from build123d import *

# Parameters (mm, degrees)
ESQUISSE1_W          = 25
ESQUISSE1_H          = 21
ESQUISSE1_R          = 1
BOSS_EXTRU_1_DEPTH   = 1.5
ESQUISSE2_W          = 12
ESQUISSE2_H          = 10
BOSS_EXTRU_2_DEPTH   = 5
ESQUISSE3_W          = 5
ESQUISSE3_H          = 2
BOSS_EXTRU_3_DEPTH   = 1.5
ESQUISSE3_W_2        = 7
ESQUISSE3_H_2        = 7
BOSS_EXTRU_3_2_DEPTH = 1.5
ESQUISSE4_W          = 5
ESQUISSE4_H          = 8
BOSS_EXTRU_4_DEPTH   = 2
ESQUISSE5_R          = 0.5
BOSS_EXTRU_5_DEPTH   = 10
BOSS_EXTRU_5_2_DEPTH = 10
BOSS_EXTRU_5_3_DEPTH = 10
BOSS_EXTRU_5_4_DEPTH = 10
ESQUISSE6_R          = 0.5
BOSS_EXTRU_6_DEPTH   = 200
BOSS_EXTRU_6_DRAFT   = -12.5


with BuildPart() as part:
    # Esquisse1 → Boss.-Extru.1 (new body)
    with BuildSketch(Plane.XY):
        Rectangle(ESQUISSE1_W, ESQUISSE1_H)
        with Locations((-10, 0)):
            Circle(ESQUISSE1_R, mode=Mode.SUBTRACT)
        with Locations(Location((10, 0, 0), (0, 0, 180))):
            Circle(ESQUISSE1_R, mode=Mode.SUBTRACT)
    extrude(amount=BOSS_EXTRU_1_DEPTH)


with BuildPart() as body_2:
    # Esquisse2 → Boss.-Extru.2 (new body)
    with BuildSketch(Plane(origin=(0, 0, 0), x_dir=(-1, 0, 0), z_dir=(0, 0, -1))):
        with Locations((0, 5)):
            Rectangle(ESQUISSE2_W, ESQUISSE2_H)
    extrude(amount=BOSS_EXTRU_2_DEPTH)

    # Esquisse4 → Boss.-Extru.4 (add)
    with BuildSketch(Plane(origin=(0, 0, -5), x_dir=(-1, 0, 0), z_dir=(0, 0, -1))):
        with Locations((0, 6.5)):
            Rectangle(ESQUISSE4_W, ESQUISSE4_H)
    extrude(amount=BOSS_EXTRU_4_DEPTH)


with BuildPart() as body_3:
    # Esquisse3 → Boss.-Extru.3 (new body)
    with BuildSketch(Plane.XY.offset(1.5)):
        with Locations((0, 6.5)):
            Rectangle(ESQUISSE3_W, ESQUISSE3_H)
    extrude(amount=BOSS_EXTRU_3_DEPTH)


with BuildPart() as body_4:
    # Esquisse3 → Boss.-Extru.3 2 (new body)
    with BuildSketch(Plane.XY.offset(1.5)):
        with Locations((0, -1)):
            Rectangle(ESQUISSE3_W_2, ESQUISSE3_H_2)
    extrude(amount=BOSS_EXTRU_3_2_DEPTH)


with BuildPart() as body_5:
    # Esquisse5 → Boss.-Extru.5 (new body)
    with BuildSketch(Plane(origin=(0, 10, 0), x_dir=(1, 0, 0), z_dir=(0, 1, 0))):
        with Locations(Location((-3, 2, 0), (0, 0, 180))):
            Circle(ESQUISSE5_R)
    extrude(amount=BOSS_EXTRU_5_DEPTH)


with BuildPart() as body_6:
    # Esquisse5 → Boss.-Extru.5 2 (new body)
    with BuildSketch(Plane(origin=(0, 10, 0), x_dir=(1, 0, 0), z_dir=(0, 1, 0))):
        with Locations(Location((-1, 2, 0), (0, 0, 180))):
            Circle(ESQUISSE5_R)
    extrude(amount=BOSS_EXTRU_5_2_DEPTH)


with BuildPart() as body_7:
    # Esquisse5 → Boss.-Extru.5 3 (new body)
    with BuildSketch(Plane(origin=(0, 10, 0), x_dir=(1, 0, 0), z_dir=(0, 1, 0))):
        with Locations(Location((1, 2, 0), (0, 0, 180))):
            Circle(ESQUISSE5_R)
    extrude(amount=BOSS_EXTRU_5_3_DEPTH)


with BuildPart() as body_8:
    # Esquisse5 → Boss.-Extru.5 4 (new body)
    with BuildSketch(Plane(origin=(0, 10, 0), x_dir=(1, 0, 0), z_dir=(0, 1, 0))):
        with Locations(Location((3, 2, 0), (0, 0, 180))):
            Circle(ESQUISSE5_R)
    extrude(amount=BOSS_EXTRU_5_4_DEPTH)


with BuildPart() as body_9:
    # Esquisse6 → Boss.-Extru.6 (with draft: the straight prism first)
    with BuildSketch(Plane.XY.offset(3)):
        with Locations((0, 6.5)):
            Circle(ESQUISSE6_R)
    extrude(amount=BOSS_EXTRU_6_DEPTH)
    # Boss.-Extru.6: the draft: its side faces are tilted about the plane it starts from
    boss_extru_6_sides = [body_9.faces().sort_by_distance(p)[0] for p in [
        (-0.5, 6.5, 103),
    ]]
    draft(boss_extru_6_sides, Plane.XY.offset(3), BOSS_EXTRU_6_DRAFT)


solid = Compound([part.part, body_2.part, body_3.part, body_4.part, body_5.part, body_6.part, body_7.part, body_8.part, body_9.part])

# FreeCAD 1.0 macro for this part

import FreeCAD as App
import Part
import Sketcher
Q = App.Units.Quantity


def faces_at(feature, points):
    """Names of the faces that lie closest to the given points."""
    faces = feature.Shape.Faces
    near = lambda p: min(range(len(faces)), key=lambda i: faces[i].distToShape(Part.Vertex(*p))[0])
    return sorted({f"Face{near(p) + 1}" for p in points})

doc = App.newDocument("Part")
body = doc.addObject("PartDesign::Body", "Body")

# Sketch on XY plane
sketch1 = doc.addObject("Sketcher::SketchObject", "Sketch")
body.addObject(sketch1)
sketch1.AttachmentSupport = (doc.XY_Plane, [""])
sketch1.MapMode = "FlatFace"
sketch1.addGeometry(Part.LineSegment(App.Vector(-12.5, 10.5, 0), App.Vector(-12.5, -10.5, 0)), False)
sketch1.addGeometry(Part.LineSegment(App.Vector(-12.5, -10.5, 0), App.Vector(12.5, -10.5, 0)), False)
sketch1.addGeometry(Part.LineSegment(App.Vector(12.5, -10.5, 0), App.Vector(12.5, 10.5, 0)), False)
sketch1.addGeometry(Part.LineSegment(App.Vector(12.5, 10.5, 0), App.Vector(-12.5, 10.5, 0)), False)
sketch1.addGeometry(Part.Circle(App.Vector(-10, 0, 0), App.Vector(0, 0, 1), 1), False)
sketch1.addGeometry(Part.Circle(App.Vector(10, 0, 0), App.Vector(0, 0, 1), 1), False)
sketch1.addConstraint(Sketcher.Constraint("Coincident", 0, 2, 1, 1))
sketch1.addConstraint(Sketcher.Constraint("Coincident", 1, 2, 2, 1))
sketch1.addConstraint(Sketcher.Constraint("Coincident", 2, 2, 3, 1))
sketch1.addConstraint(Sketcher.Constraint("Coincident", 3, 2, 0, 1))
sketch1.addConstraint(Sketcher.Constraint("Vertical", 0))
sketch1.addConstraint(Sketcher.Constraint("Horizontal", 1))
sketch1.addConstraint(Sketcher.Constraint("Vertical", 2))
sketch1.addConstraint(Sketcher.Constraint("Horizontal", 3))
sketch1.addConstraint(Sketcher.Constraint("Equal", 4, 5))
sketch1.addConstraint(Sketcher.Constraint("Symmetric", 4, 3, 5, 3, -1, 1))
sketch1.addConstraint(Sketcher.Constraint("Symmetric", 0, 2, 2, 2, -1, 1))
sketch1.addConstraint(Sketcher.Constraint("PointOnObject", 4, 3, -1))
sketch1.addConstraint(Sketcher.Constraint("Diameter", 4, Q("2 mm")))
sketch1.addConstraint(Sketcher.Constraint("DistanceX", 1, 1, 1, 2, Q("25 mm")))
sketch1.addConstraint(Sketcher.Constraint("DistanceY", 0, 2, 0, 1, Q("21 mm")))
sketch1.addConstraint(Sketcher.Constraint("DistanceX", 4, 3, -1, 1, Q("10 mm")))
pad1 = doc.addObject("PartDesign::Pad", "Pad")
body.addObject(pad1)
pad1.Profile = sketch1
pad1.Length = 1.5
body2 = doc.addObject("PartDesign::Body", "Body001")

# Sketch on XY plane
sketch2 = doc.addObject("Sketcher::SketchObject", "Sketch001")
body2.addObject(sketch2)
sketch2.AttachmentSupport = (doc.getObject("XY_Plane001"), [""])
sketch2.MapMode = "FlatFace"
sketch2.addGeometry(Part.LineSegment(App.Vector(6, 10, 0), App.Vector(6, 0, 0)), False)
sketch2.addGeometry(Part.LineSegment(App.Vector(6, 0, 0), App.Vector(-6, 0, 0)), False)
sketch2.addGeometry(Part.LineSegment(App.Vector(-6, 0, 0), App.Vector(-6, 10, 0)), False)
sketch2.addGeometry(Part.LineSegment(App.Vector(-6, 10, 0), App.Vector(6, 10, 0)), False)
sketch2.addConstraint(Sketcher.Constraint("Coincident", 0, 2, 1, 1))
sketch2.addConstraint(Sketcher.Constraint("Coincident", 1, 2, 2, 1))
sketch2.addConstraint(Sketcher.Constraint("Coincident", 2, 2, 3, 1))
sketch2.addConstraint(Sketcher.Constraint("Coincident", 3, 2, 0, 1))
sketch2.addConstraint(Sketcher.Constraint("Vertical", 0))
sketch2.addConstraint(Sketcher.Constraint("Horizontal", 1))
sketch2.addConstraint(Sketcher.Constraint("Vertical", 2))
sketch2.addConstraint(Sketcher.Constraint("Horizontal", 3))
sketch2.addConstraint(Sketcher.Constraint("Symmetric", 0, 2, 1, 2, -1, 1))
sketch2.addConstraint(Sketcher.Constraint("DistanceX", 1, 2, 1, 1, Q("12 mm")))
sketch2.addConstraint(Sketcher.Constraint("DistanceY", 0, 2, 0, 1, Q("10 mm")))
pad2 = doc.addObject("PartDesign::Pad", "Pad001")
body2.addObject(pad2)
pad2.Profile = sketch2
pad2.Length = 5
pad2.Reversed = True

# Sketch on XY plane
sketch3 = doc.addObject("Sketcher::SketchObject", "Sketch002")
body2.addObject(sketch3)
sketch3.AttachmentSupport = (doc.getObject("XY_Plane001"), [""])
sketch3.MapMode = "FlatFace"
sketch3.AttachmentOffset = App.Placement(App.Vector(0, 0, -5), App.Rotation())
sketch3.addGeometry(Part.LineSegment(App.Vector(2.5, 10.5, 0), App.Vector(2.5, 2.5, 0)), False)
sketch3.addGeometry(Part.LineSegment(App.Vector(2.5, 2.5, 0), App.Vector(-2.5, 2.5, 0)), False)
sketch3.addGeometry(Part.LineSegment(App.Vector(-2.5, 2.5, 0), App.Vector(-2.5, 10.5, 0)), False)
sketch3.addGeometry(Part.LineSegment(App.Vector(-2.5, 10.5, 0), App.Vector(2.5, 10.5, 0)), False)
sketch3.addConstraint(Sketcher.Constraint("Coincident", 0, 2, 1, 1))
sketch3.addConstraint(Sketcher.Constraint("Coincident", 1, 2, 2, 1))
sketch3.addConstraint(Sketcher.Constraint("Coincident", 2, 2, 3, 1))
sketch3.addConstraint(Sketcher.Constraint("Coincident", 3, 2, 0, 1))
sketch3.addConstraint(Sketcher.Constraint("Vertical", 0))
sketch3.addConstraint(Sketcher.Constraint("Horizontal", 1))
sketch3.addConstraint(Sketcher.Constraint("Vertical", 2))
sketch3.addConstraint(Sketcher.Constraint("Horizontal", 3))
sketch3.addConstraint(Sketcher.Constraint("DistanceX", 1, 2, 1, 1, Q("5 mm")))
sketch3.addConstraint(Sketcher.Constraint("DistanceY", 0, 2, 0, 1, Q("8 mm")))
sketch3.addConstraint(Sketcher.Constraint("DistanceX", -1, 1, 0, 2, Q("2.5 mm")))
sketch3.addConstraint(Sketcher.Constraint("DistanceY", -1, 1, 0, 2, Q("2.5 mm")))
pad3 = doc.addObject("PartDesign::Pad", "Pad002")
body2.addObject(pad3)
pad3.Profile = sketch3
pad3.Length = 2
pad3.Reversed = True
body3 = doc.addObject("PartDesign::Body", "Body002")

# Sketch on XY plane
sketch4 = doc.addObject("Sketcher::SketchObject", "Sketch003")
body3.addObject(sketch4)
sketch4.AttachmentSupport = (doc.getObject("XY_Plane002"), [""])
sketch4.MapMode = "FlatFace"
sketch4.AttachmentOffset = App.Placement(App.Vector(0, 0, 1.5), App.Rotation())
sketch4.addGeometry(Part.LineSegment(App.Vector(-2.5, 7.5, 0), App.Vector(-2.5, 5.5, 0)), False)
sketch4.addGeometry(Part.LineSegment(App.Vector(-2.5, 5.5, 0), App.Vector(2.5, 5.5, 0)), False)
sketch4.addGeometry(Part.LineSegment(App.Vector(2.5, 5.5, 0), App.Vector(2.5, 7.5, 0)), False)
sketch4.addGeometry(Part.LineSegment(App.Vector(2.5, 7.5, 0), App.Vector(-2.5, 7.5, 0)), False)
sketch4.addConstraint(Sketcher.Constraint("Coincident", 0, 2, 1, 1))
sketch4.addConstraint(Sketcher.Constraint("Coincident", 1, 2, 2, 1))
sketch4.addConstraint(Sketcher.Constraint("Coincident", 2, 2, 3, 1))
sketch4.addConstraint(Sketcher.Constraint("Coincident", 3, 2, 0, 1))
sketch4.addConstraint(Sketcher.Constraint("Vertical", 0))
sketch4.addConstraint(Sketcher.Constraint("Horizontal", 1))
sketch4.addConstraint(Sketcher.Constraint("Vertical", 2))
sketch4.addConstraint(Sketcher.Constraint("Horizontal", 3))
sketch4.addConstraint(Sketcher.Constraint("DistanceX", 1, 1, 1, 2, Q("5 mm")))
sketch4.addConstraint(Sketcher.Constraint("DistanceY", 0, 2, 0, 1, Q("2 mm")))
sketch4.addConstraint(Sketcher.Constraint("DistanceX", 0, 2, -1, 1, Q("2.5 mm")))
sketch4.addConstraint(Sketcher.Constraint("DistanceY", -1, 1, 0, 2, Q("5.5 mm")))
pad4 = doc.addObject("PartDesign::Pad", "Pad003")
body3.addObject(pad4)
pad4.Profile = sketch4
pad4.Length = 1.5
body4 = doc.addObject("PartDesign::Body", "Body003")

# Sketch on XY plane
sketch5 = doc.addObject("Sketcher::SketchObject", "Sketch004")
body4.addObject(sketch5)
sketch5.AttachmentSupport = (doc.getObject("XY_Plane003"), [""])
sketch5.MapMode = "FlatFace"
sketch5.AttachmentOffset = App.Placement(App.Vector(0, 0, 1.5), App.Rotation())
sketch5.addGeometry(Part.LineSegment(App.Vector(-3.5, 2.5, 0), App.Vector(-3.5, -4.5, 0)), False)
sketch5.addGeometry(Part.LineSegment(App.Vector(-3.5, -4.5, 0), App.Vector(3.5, -4.5, 0)), False)
sketch5.addGeometry(Part.LineSegment(App.Vector(3.5, -4.5, 0), App.Vector(3.5, 2.5, 0)), False)
sketch5.addGeometry(Part.LineSegment(App.Vector(3.5, 2.5, 0), App.Vector(-3.5, 2.5, 0)), False)
sketch5.addConstraint(Sketcher.Constraint("Coincident", 0, 2, 1, 1))
sketch5.addConstraint(Sketcher.Constraint("Coincident", 1, 2, 2, 1))
sketch5.addConstraint(Sketcher.Constraint("Coincident", 2, 2, 3, 1))
sketch5.addConstraint(Sketcher.Constraint("Coincident", 3, 2, 0, 1))
sketch5.addConstraint(Sketcher.Constraint("Vertical", 0))
sketch5.addConstraint(Sketcher.Constraint("Horizontal", 1))
sketch5.addConstraint(Sketcher.Constraint("Vertical", 2))
sketch5.addConstraint(Sketcher.Constraint("Horizontal", 3))
sketch5.addConstraint(Sketcher.Constraint("Equal", 3, 0))
sketch5.addConstraint(Sketcher.Constraint("DistanceX", 1, 1, 1, 2, Q("7 mm")))
sketch5.addConstraint(Sketcher.Constraint("DistanceX", 0, 2, -1, 1, Q("3.5 mm")))
sketch5.addConstraint(Sketcher.Constraint("DistanceY", 0, 2, -1, 1, Q("4.5 mm")))
pad5 = doc.addObject("PartDesign::Pad", "Pad004")
body4.addObject(pad5)
pad5.Profile = sketch5
pad5.Length = 1.5
body5 = doc.addObject("PartDesign::Body", "Body004")

# Sketch on XZ plane
sketch6 = doc.addObject("Sketcher::SketchObject", "Sketch005")
body5.addObject(sketch6)
sketch6.AttachmentSupport = (doc.getObject("XZ_Plane004"), [""])
sketch6.MapMode = "FlatFace"
sketch6.AttachmentOffset = App.Placement(App.Vector(0, 0, -10), App.Rotation())
sketch6.addGeometry(Part.Circle(App.Vector(-3, -2, 0), App.Vector(0, 0, 1), 0.5), False)
sketch6.addConstraint(Sketcher.Constraint("Diameter", 0, Q("1 mm")))
sketch6.addConstraint(Sketcher.Constraint("DistanceX", 0, 3, -1, 1, Q("3 mm")))
sketch6.addConstraint(Sketcher.Constraint("DistanceY", 0, 3, -1, 1, Q("2 mm")))
pad6 = doc.addObject("PartDesign::Pad", "Pad005")
body5.addObject(pad6)
pad6.Profile = sketch6
pad6.Length = 10
pad6.Reversed = True
body6 = doc.addObject("PartDesign::Body", "Body005")

# Sketch on XZ plane
sketch7 = doc.addObject("Sketcher::SketchObject", "Sketch006")
body6.addObject(sketch7)
sketch7.AttachmentSupport = (doc.getObject("XZ_Plane005"), [""])
sketch7.MapMode = "FlatFace"
sketch7.AttachmentOffset = App.Placement(App.Vector(0, 0, -10), App.Rotation())
sketch7.addGeometry(Part.Circle(App.Vector(-1, -2, 0), App.Vector(0, 0, 1), 0.5), False)
sketch7.addConstraint(Sketcher.Constraint("Diameter", 0, Q("1 mm")))
sketch7.addConstraint(Sketcher.Constraint("DistanceX", 0, 3, -1, 1, Q("1 mm")))
sketch7.addConstraint(Sketcher.Constraint("DistanceY", 0, 3, -1, 1, Q("2 mm")))
pad7 = doc.addObject("PartDesign::Pad", "Pad006")
body6.addObject(pad7)
pad7.Profile = sketch7
pad7.Length = 10
pad7.Reversed = True
body7 = doc.addObject("PartDesign::Body", "Body006")

# Sketch on XZ plane
sketch8 = doc.addObject("Sketcher::SketchObject", "Sketch007")
body7.addObject(sketch8)
sketch8.AttachmentSupport = (doc.getObject("XZ_Plane006"), [""])
sketch8.MapMode = "FlatFace"
sketch8.AttachmentOffset = App.Placement(App.Vector(0, 0, -10), App.Rotation())
sketch8.addGeometry(Part.Circle(App.Vector(1, -2, 0), App.Vector(0, 0, 1), 0.5), False)
sketch8.addConstraint(Sketcher.Constraint("Diameter", 0, Q("1 mm")))
sketch8.addConstraint(Sketcher.Constraint("DistanceX", -1, 1, 0, 3, Q("1 mm")))
sketch8.addConstraint(Sketcher.Constraint("DistanceY", 0, 3, -1, 1, Q("2 mm")))
pad8 = doc.addObject("PartDesign::Pad", "Pad007")
body7.addObject(pad8)
pad8.Profile = sketch8
pad8.Length = 10
pad8.Reversed = True
body8 = doc.addObject("PartDesign::Body", "Body007")

# Sketch on XZ plane
sketch9 = doc.addObject("Sketcher::SketchObject", "Sketch008")
body8.addObject(sketch9)
sketch9.AttachmentSupport = (doc.getObject("XZ_Plane007"), [""])
sketch9.MapMode = "FlatFace"
sketch9.AttachmentOffset = App.Placement(App.Vector(0, 0, -10), App.Rotation())
sketch9.addGeometry(Part.Circle(App.Vector(3, -2, 0), App.Vector(0, 0, 1), 0.5), False)
sketch9.addConstraint(Sketcher.Constraint("Diameter", 0, Q("1 mm")))
sketch9.addConstraint(Sketcher.Constraint("DistanceX", -1, 1, 0, 3, Q("3 mm")))
sketch9.addConstraint(Sketcher.Constraint("DistanceY", 0, 3, -1, 1, Q("2 mm")))
pad9 = doc.addObject("PartDesign::Pad", "Pad008")
body8.addObject(pad9)
pad9.Profile = sketch9
pad9.Length = 10
pad9.Reversed = True
body9 = doc.addObject("PartDesign::Body", "Body008")

# Sketch on XY plane
sketch10 = doc.addObject("Sketcher::SketchObject", "Sketch009")
body9.addObject(sketch10)
sketch10.AttachmentSupport = (doc.getObject("XY_Plane008"), [""])
sketch10.MapMode = "FlatFace"
sketch10.AttachmentOffset = App.Placement(App.Vector(0, 0, 3), App.Rotation())
sketch10.addGeometry(Part.Circle(App.Vector(0, 6.5, 0), App.Vector(0, 0, 1), 0.5), False)
sketch10.addConstraint(Sketcher.Constraint("PointOnObject", 0, 3, -2))
sketch10.addConstraint(Sketcher.Constraint("Diameter", 0, Q("1 mm")))
sketch10.addConstraint(Sketcher.Constraint("DistanceY", -1, 1, 0, 3, Q("6.5 mm")))
pad10 = doc.addObject("PartDesign::Pad", "Pad009")
body9.addObject(pad10)
pad10.Profile = sketch10
pad10.Length = 200
doc.recompute()

datumplane = doc.addObject("PartDesign::Plane", "DatumPlane")
body9.addObject(datumplane)
datumplane.AttachmentSupport = (doc.getObject("XY_Plane008"), [""])
datumplane.MapMode = "FlatFace"
datumplane.AttachmentOffset = App.Placement(App.Vector(0, 0, 3), App.Rotation())
draft = doc.addObject("PartDesign::Draft", "Draft")
body9.addObject(draft)
draft.Base = (pad10, faces_at(pad10, [(-0.5, 6.5, 103)]))
draft.NeutralPlane = (datumplane, [""])
draft.Angle = 12.5
draft.Reversed = True

doc.recompute()
